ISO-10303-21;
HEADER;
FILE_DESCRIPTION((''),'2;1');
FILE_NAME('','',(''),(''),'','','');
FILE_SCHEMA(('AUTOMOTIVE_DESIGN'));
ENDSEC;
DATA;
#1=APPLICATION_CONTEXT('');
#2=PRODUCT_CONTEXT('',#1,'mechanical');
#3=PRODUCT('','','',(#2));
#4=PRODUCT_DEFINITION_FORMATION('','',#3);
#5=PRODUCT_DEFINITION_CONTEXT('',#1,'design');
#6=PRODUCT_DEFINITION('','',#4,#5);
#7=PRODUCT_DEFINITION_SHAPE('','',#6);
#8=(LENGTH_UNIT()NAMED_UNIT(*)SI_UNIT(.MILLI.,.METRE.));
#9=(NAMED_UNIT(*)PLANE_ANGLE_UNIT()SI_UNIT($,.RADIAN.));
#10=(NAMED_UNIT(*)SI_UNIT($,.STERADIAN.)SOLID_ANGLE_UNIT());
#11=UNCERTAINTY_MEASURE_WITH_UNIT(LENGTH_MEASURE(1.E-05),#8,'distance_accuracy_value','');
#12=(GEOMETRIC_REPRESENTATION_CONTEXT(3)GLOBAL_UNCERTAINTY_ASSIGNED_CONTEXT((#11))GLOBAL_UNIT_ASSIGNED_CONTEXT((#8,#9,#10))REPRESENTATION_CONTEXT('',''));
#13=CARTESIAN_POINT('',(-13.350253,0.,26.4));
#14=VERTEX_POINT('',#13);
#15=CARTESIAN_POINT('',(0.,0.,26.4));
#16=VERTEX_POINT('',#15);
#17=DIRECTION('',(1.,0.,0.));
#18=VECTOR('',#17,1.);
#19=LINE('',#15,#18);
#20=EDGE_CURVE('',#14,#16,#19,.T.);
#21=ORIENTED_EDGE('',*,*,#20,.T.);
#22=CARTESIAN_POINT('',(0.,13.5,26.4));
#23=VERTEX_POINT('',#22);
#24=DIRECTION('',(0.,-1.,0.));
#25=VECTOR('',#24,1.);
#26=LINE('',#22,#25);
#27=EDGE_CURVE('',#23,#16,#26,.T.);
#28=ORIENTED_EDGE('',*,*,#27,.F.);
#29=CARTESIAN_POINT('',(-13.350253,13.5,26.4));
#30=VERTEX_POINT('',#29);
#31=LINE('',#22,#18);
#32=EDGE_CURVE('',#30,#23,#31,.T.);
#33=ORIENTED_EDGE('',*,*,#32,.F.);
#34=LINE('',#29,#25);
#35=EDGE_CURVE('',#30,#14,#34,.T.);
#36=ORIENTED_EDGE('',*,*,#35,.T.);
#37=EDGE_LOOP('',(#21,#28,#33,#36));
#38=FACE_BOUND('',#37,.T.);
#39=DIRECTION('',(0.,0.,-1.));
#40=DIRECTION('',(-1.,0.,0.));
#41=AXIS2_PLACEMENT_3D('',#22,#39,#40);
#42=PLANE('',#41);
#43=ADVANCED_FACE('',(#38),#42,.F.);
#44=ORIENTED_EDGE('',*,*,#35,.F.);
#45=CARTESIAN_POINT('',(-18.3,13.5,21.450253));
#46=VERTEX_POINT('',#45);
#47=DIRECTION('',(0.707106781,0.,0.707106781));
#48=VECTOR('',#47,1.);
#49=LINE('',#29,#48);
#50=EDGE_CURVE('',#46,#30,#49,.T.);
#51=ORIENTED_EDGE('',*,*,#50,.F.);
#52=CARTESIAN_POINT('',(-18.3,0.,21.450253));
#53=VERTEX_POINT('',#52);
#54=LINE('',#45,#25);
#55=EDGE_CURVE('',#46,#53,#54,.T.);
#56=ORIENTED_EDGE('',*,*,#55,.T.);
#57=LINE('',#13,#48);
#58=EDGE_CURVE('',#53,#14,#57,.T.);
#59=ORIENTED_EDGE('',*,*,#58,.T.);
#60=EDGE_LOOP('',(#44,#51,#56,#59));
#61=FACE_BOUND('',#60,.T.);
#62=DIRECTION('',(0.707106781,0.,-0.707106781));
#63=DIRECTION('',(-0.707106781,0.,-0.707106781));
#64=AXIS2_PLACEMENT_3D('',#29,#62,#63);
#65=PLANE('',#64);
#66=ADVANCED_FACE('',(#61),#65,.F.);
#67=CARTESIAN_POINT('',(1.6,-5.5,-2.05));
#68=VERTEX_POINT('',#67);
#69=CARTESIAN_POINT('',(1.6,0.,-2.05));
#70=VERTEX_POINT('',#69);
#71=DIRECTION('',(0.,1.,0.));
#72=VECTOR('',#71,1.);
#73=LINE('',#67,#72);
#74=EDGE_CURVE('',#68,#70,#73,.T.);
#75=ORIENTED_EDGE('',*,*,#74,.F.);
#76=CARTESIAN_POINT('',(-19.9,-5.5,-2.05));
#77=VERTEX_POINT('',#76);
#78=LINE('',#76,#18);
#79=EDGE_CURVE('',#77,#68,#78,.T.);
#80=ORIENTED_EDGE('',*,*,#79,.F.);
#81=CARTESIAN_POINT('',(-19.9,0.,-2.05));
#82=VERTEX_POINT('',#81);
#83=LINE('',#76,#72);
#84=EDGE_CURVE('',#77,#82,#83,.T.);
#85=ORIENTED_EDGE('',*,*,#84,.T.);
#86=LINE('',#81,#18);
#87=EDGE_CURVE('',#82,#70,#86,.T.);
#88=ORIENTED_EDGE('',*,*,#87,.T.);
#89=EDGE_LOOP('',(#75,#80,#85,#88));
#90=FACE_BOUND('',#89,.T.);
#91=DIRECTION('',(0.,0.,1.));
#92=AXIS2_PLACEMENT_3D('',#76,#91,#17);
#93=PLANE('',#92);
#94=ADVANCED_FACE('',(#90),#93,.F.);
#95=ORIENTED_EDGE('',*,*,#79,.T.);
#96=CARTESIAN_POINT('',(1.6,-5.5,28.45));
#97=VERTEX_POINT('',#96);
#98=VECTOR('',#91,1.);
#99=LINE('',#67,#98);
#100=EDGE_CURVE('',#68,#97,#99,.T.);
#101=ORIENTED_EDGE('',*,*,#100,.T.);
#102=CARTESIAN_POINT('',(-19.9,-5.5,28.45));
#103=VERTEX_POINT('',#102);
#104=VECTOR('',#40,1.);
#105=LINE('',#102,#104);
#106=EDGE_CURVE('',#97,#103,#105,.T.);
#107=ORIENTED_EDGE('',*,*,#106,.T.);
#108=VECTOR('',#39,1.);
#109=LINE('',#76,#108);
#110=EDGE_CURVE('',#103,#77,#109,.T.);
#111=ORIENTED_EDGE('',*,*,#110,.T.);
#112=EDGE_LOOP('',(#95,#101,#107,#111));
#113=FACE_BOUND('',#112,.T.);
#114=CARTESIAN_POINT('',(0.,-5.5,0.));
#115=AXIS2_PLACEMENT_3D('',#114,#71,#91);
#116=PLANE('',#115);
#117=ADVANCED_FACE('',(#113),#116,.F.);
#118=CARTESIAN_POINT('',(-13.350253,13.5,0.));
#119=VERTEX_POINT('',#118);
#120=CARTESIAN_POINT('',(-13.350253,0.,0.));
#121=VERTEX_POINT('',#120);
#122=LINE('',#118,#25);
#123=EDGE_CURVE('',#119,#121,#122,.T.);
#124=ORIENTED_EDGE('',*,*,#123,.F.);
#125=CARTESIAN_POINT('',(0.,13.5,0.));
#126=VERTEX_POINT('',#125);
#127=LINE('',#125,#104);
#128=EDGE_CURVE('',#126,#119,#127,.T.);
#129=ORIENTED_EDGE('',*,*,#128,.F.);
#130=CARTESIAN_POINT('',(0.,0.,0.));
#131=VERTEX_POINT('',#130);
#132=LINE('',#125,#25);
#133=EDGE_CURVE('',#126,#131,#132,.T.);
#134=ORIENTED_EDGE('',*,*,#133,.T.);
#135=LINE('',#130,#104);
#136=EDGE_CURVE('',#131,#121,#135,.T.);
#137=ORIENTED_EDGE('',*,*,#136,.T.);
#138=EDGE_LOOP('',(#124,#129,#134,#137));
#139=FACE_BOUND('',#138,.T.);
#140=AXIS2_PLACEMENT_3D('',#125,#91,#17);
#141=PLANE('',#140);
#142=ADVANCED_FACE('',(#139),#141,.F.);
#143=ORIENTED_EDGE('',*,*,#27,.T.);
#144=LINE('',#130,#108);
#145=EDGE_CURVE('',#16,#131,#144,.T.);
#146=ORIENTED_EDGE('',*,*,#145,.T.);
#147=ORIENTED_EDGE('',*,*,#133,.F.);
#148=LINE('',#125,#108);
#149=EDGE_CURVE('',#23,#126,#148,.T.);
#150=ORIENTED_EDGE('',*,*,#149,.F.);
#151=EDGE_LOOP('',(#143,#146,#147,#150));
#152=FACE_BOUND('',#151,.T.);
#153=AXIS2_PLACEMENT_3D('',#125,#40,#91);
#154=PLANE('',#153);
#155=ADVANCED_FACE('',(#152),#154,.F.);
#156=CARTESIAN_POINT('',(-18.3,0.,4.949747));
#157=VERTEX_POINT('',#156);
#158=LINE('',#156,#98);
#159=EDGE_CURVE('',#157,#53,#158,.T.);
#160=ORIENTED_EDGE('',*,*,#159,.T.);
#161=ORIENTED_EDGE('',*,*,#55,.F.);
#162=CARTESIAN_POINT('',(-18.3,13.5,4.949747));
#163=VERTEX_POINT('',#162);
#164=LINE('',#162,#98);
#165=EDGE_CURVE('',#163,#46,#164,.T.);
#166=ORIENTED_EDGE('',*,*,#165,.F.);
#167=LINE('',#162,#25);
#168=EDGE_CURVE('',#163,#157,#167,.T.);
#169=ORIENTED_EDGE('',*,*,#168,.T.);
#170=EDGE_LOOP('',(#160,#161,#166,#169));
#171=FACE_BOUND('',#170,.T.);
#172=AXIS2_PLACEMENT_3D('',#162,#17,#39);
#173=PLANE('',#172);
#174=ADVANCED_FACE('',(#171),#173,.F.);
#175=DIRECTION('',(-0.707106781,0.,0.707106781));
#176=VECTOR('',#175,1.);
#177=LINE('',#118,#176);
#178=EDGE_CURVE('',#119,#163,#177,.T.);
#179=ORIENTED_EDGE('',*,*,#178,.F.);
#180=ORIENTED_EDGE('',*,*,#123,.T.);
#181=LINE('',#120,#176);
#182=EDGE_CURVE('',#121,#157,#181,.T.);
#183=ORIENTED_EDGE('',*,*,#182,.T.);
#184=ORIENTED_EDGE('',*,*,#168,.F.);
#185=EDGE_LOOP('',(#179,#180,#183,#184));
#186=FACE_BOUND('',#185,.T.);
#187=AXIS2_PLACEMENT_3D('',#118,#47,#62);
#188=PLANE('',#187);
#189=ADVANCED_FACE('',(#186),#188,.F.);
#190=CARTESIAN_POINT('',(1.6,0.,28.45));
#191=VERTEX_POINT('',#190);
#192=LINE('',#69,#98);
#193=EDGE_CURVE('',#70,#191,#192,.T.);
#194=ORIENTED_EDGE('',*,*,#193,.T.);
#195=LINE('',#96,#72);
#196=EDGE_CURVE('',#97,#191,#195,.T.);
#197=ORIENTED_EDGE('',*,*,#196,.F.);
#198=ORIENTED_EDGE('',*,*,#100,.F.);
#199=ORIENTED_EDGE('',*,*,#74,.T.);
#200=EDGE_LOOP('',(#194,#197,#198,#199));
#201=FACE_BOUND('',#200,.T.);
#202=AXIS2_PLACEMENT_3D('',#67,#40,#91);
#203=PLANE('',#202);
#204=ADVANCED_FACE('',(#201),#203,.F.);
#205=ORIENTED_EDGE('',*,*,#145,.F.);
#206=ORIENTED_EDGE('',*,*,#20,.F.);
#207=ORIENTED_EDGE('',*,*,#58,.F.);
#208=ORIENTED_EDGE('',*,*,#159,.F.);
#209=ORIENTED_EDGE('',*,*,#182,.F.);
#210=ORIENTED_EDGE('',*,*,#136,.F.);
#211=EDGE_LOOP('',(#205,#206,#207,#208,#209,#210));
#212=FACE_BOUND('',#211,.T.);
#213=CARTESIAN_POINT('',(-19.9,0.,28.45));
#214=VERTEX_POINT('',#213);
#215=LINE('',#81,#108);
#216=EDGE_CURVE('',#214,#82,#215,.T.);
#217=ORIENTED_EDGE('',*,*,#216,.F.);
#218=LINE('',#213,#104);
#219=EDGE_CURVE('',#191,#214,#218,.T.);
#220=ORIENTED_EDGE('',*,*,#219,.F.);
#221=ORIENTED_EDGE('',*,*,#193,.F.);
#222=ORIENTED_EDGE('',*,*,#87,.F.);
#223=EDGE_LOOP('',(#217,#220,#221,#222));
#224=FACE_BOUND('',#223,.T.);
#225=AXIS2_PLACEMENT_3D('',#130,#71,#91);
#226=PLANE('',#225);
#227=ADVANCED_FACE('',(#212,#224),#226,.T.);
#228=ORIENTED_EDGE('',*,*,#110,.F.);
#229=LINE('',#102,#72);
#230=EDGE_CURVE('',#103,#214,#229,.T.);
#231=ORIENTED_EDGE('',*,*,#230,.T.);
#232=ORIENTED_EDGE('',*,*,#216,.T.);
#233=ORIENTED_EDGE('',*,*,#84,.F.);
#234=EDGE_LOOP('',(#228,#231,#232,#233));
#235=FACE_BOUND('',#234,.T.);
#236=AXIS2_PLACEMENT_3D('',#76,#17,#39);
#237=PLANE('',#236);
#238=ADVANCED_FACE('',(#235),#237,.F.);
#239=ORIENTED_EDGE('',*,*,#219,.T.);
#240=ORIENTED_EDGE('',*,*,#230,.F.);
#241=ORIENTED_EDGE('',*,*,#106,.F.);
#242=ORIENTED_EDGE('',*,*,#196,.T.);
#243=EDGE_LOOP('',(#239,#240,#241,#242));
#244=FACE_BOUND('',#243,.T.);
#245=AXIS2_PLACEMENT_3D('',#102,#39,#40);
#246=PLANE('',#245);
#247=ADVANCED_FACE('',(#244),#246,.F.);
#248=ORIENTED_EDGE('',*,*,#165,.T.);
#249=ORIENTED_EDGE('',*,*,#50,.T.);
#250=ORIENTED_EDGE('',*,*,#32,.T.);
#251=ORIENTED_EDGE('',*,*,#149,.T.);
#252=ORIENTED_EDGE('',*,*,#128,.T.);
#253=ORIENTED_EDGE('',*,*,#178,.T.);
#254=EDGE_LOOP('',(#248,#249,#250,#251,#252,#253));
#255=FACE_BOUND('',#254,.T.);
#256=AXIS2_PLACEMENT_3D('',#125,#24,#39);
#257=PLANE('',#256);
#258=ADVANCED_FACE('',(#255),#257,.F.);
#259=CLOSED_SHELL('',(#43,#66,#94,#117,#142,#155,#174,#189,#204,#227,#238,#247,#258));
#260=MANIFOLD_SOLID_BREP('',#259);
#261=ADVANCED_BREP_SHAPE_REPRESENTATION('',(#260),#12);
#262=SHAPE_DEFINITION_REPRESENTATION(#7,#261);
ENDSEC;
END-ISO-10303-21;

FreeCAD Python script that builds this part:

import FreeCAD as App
import Part
import Sketcher
from FreeCAD import Vector
Q = App.Units.Quantity

doc = App.newDocument("Part")
params = doc.addObject("Spreadsheet::Sheet", "Params")
for row, (alias, value) in enumerate([
    ("sketch1_length", "7 mm"),
    ("sketch1_height", "26.4 mm"),
    ("pad1_length", "13.5 mm"),
    ("sketch2_width", "21.5 mm"),
    ("sketch2_height", "30.5 mm"),
    ("pad2_length", "5.5 mm"),
], start=1):
    params.set(f"A{row}", alias)
    params.set(f"B{row}", "=" + value)
    params.setAlias(f"B{row}", alias)

body = doc.addObject("PartDesign::Body", "Body")

sketch1 = body.newObject("Sketcher::SketchObject", "Sketch")
sketch1.AttachmentSupport = (doc.getObject("XZ_Plane"), [""])
sketch1.MapMode = "FlatFace"
sketch1.addGeometry(Part.LineSegment(Vector(-18, 21, 0), Vector(-13, 26, 0)), False)
sketch1.addGeometry(Part.LineSegment(Vector(-13, 26, 0), Vector(0, 26, 0)), False)
sketch1.addGeometry(Part.LineSegment(Vector(0, 26, 0), Vector(0, 0, 0)), False)
sketch1.addGeometry(Part.LineSegment(Vector(0, 0, 0), Vector(-13, 0, 0)), False)
sketch1.addGeometry(Part.LineSegment(Vector(-13, 0, 0), Vector(-18, 5, 0)), False)
sketch1.addGeometry(Part.LineSegment(Vector(-18, 5, 0), Vector(-18, 21, 0)), False)
sketch1.addConstraint(Sketcher.Constraint("Coincident", 0, 2, 1, 1))
sketch1.addConstraint(Sketcher.Constraint("Coincident", 1, 2, 2, 1))
sketch1.addConstraint(Sketcher.Constraint("Coincident", 2, 2, 3, 1))
sketch1.addConstraint(Sketcher.Constraint("Coincident", 3, 2, 4, 1))
sketch1.addConstraint(Sketcher.Constraint("Coincident", 4, 2, 5, 1))
sketch1.addConstraint(Sketcher.Constraint("Coincident", 5, 2, 0, 1))
sketch1.addConstraint(Sketcher.Constraint("Horizontal", 1))
sketch1.addConstraint(Sketcher.Constraint("Vertical", 2))
sketch1.addConstraint(Sketcher.Constraint("Horizontal", 3))
sketch1.addConstraint(Sketcher.Constraint("Vertical", 5))
sketch1.addConstraint(Sketcher.Constraint("Coincident", 2, 2, -1, 1))
sketch1.addConstraint(Sketcher.Constraint("Perpendicular", 0, 4))
sketch1.addConstraint(Sketcher.Constraint("Vertical", 0, 2, 3, 2))
sketch1.addConstraint(Sketcher.Constraint("Equal", 0, 4))
sketch1.addConstraint(Sketcher.Constraint("Distance", 0, Q("7 mm")))
sketch1.addConstraint(Sketcher.Constraint("DistanceY", 2, 2, 2, 1, Q("26.4 mm")))
sketch1.addConstraint(Sketcher.Constraint("DistanceX", 4, 2, -1, 1, Q("18.3 mm")))
sketch1.setExpression("Constraints[14]", "Params.sketch1_length")
sketch1.setExpression("Constraints[15]", "Params.sketch1_height")
pad1 = body.newObject("PartDesign::Pad", "Pad")
pad1.Profile = sketch1
pad1.setExpression("Length", "Params.pad1_length")
pad1.Reversed = True

sketch2 = body.newObject("Sketcher::SketchObject", "Sketch001")
sketch2.AttachmentSupport = (doc.getObject("XZ_Plane"), [""])
sketch2.MapMode = "FlatFace"
sketch2.addGeometry(Part.LineSegment(Vector(-20, 28, 0), Vector(-20, -2, 0)), False)
sketch2.addGeometry(Part.LineSegment(Vector(-20, -2, 0), Vector(2, -2, 0)), False)
sketch2.addGeometry(Part.LineSegment(Vector(2, -2, 0), Vector(2, 28, 0)), False)
sketch2.addGeometry(Part.LineSegment(Vector(2, 28, 0), Vector(-20, 28, 0)), False)
sketch2.addConstraint(Sketcher.Constraint("Coincident", 0, 2, 1, 1))
sketch2.addConstraint(Sketcher.Constraint("Coincident", 1, 2, 2, 1))
sketch2.addConstraint(Sketcher.Constraint("Coincident", 2, 2, 3, 1))
sketch2.addConstraint(Sketcher.Constraint("Coincident", 3, 2, 0, 1))
sketch2.addConstraint(Sketcher.Constraint("Vertical", 0))
sketch2.addConstraint(Sketcher.Constraint("Horizontal", 1))
sketch2.addConstraint(Sketcher.Constraint("Vertical", 2))
sketch2.addConstraint(Sketcher.Constraint("Horizontal", 3))
sketch2.addConstraint(Sketcher.Constraint("DistanceX", 1, 1, 1, 2, Q("21.5 mm")))
sketch2.addConstraint(Sketcher.Constraint("DistanceY", 0, 2, 0, 1, Q("30.5 mm")))
sketch2.addConstraint(Sketcher.Constraint("DistanceX", 0, 2, -1, 1, Q("19.9 mm")))
sketch2.addConstraint(Sketcher.Constraint("DistanceY", 0, 2, -1, 1, Q("2.05 mm")))
sketch2.setExpression("Constraints[8]", "Params.sketch2_width")
sketch2.setExpression("Constraints[9]", "Params.sketch2_height")
pad2 = body.newObject("PartDesign::Pad", "Pad001")
pad2.Profile = sketch2
pad2.setExpression("Length", "Params.pad2_length")

doc.recompute()
